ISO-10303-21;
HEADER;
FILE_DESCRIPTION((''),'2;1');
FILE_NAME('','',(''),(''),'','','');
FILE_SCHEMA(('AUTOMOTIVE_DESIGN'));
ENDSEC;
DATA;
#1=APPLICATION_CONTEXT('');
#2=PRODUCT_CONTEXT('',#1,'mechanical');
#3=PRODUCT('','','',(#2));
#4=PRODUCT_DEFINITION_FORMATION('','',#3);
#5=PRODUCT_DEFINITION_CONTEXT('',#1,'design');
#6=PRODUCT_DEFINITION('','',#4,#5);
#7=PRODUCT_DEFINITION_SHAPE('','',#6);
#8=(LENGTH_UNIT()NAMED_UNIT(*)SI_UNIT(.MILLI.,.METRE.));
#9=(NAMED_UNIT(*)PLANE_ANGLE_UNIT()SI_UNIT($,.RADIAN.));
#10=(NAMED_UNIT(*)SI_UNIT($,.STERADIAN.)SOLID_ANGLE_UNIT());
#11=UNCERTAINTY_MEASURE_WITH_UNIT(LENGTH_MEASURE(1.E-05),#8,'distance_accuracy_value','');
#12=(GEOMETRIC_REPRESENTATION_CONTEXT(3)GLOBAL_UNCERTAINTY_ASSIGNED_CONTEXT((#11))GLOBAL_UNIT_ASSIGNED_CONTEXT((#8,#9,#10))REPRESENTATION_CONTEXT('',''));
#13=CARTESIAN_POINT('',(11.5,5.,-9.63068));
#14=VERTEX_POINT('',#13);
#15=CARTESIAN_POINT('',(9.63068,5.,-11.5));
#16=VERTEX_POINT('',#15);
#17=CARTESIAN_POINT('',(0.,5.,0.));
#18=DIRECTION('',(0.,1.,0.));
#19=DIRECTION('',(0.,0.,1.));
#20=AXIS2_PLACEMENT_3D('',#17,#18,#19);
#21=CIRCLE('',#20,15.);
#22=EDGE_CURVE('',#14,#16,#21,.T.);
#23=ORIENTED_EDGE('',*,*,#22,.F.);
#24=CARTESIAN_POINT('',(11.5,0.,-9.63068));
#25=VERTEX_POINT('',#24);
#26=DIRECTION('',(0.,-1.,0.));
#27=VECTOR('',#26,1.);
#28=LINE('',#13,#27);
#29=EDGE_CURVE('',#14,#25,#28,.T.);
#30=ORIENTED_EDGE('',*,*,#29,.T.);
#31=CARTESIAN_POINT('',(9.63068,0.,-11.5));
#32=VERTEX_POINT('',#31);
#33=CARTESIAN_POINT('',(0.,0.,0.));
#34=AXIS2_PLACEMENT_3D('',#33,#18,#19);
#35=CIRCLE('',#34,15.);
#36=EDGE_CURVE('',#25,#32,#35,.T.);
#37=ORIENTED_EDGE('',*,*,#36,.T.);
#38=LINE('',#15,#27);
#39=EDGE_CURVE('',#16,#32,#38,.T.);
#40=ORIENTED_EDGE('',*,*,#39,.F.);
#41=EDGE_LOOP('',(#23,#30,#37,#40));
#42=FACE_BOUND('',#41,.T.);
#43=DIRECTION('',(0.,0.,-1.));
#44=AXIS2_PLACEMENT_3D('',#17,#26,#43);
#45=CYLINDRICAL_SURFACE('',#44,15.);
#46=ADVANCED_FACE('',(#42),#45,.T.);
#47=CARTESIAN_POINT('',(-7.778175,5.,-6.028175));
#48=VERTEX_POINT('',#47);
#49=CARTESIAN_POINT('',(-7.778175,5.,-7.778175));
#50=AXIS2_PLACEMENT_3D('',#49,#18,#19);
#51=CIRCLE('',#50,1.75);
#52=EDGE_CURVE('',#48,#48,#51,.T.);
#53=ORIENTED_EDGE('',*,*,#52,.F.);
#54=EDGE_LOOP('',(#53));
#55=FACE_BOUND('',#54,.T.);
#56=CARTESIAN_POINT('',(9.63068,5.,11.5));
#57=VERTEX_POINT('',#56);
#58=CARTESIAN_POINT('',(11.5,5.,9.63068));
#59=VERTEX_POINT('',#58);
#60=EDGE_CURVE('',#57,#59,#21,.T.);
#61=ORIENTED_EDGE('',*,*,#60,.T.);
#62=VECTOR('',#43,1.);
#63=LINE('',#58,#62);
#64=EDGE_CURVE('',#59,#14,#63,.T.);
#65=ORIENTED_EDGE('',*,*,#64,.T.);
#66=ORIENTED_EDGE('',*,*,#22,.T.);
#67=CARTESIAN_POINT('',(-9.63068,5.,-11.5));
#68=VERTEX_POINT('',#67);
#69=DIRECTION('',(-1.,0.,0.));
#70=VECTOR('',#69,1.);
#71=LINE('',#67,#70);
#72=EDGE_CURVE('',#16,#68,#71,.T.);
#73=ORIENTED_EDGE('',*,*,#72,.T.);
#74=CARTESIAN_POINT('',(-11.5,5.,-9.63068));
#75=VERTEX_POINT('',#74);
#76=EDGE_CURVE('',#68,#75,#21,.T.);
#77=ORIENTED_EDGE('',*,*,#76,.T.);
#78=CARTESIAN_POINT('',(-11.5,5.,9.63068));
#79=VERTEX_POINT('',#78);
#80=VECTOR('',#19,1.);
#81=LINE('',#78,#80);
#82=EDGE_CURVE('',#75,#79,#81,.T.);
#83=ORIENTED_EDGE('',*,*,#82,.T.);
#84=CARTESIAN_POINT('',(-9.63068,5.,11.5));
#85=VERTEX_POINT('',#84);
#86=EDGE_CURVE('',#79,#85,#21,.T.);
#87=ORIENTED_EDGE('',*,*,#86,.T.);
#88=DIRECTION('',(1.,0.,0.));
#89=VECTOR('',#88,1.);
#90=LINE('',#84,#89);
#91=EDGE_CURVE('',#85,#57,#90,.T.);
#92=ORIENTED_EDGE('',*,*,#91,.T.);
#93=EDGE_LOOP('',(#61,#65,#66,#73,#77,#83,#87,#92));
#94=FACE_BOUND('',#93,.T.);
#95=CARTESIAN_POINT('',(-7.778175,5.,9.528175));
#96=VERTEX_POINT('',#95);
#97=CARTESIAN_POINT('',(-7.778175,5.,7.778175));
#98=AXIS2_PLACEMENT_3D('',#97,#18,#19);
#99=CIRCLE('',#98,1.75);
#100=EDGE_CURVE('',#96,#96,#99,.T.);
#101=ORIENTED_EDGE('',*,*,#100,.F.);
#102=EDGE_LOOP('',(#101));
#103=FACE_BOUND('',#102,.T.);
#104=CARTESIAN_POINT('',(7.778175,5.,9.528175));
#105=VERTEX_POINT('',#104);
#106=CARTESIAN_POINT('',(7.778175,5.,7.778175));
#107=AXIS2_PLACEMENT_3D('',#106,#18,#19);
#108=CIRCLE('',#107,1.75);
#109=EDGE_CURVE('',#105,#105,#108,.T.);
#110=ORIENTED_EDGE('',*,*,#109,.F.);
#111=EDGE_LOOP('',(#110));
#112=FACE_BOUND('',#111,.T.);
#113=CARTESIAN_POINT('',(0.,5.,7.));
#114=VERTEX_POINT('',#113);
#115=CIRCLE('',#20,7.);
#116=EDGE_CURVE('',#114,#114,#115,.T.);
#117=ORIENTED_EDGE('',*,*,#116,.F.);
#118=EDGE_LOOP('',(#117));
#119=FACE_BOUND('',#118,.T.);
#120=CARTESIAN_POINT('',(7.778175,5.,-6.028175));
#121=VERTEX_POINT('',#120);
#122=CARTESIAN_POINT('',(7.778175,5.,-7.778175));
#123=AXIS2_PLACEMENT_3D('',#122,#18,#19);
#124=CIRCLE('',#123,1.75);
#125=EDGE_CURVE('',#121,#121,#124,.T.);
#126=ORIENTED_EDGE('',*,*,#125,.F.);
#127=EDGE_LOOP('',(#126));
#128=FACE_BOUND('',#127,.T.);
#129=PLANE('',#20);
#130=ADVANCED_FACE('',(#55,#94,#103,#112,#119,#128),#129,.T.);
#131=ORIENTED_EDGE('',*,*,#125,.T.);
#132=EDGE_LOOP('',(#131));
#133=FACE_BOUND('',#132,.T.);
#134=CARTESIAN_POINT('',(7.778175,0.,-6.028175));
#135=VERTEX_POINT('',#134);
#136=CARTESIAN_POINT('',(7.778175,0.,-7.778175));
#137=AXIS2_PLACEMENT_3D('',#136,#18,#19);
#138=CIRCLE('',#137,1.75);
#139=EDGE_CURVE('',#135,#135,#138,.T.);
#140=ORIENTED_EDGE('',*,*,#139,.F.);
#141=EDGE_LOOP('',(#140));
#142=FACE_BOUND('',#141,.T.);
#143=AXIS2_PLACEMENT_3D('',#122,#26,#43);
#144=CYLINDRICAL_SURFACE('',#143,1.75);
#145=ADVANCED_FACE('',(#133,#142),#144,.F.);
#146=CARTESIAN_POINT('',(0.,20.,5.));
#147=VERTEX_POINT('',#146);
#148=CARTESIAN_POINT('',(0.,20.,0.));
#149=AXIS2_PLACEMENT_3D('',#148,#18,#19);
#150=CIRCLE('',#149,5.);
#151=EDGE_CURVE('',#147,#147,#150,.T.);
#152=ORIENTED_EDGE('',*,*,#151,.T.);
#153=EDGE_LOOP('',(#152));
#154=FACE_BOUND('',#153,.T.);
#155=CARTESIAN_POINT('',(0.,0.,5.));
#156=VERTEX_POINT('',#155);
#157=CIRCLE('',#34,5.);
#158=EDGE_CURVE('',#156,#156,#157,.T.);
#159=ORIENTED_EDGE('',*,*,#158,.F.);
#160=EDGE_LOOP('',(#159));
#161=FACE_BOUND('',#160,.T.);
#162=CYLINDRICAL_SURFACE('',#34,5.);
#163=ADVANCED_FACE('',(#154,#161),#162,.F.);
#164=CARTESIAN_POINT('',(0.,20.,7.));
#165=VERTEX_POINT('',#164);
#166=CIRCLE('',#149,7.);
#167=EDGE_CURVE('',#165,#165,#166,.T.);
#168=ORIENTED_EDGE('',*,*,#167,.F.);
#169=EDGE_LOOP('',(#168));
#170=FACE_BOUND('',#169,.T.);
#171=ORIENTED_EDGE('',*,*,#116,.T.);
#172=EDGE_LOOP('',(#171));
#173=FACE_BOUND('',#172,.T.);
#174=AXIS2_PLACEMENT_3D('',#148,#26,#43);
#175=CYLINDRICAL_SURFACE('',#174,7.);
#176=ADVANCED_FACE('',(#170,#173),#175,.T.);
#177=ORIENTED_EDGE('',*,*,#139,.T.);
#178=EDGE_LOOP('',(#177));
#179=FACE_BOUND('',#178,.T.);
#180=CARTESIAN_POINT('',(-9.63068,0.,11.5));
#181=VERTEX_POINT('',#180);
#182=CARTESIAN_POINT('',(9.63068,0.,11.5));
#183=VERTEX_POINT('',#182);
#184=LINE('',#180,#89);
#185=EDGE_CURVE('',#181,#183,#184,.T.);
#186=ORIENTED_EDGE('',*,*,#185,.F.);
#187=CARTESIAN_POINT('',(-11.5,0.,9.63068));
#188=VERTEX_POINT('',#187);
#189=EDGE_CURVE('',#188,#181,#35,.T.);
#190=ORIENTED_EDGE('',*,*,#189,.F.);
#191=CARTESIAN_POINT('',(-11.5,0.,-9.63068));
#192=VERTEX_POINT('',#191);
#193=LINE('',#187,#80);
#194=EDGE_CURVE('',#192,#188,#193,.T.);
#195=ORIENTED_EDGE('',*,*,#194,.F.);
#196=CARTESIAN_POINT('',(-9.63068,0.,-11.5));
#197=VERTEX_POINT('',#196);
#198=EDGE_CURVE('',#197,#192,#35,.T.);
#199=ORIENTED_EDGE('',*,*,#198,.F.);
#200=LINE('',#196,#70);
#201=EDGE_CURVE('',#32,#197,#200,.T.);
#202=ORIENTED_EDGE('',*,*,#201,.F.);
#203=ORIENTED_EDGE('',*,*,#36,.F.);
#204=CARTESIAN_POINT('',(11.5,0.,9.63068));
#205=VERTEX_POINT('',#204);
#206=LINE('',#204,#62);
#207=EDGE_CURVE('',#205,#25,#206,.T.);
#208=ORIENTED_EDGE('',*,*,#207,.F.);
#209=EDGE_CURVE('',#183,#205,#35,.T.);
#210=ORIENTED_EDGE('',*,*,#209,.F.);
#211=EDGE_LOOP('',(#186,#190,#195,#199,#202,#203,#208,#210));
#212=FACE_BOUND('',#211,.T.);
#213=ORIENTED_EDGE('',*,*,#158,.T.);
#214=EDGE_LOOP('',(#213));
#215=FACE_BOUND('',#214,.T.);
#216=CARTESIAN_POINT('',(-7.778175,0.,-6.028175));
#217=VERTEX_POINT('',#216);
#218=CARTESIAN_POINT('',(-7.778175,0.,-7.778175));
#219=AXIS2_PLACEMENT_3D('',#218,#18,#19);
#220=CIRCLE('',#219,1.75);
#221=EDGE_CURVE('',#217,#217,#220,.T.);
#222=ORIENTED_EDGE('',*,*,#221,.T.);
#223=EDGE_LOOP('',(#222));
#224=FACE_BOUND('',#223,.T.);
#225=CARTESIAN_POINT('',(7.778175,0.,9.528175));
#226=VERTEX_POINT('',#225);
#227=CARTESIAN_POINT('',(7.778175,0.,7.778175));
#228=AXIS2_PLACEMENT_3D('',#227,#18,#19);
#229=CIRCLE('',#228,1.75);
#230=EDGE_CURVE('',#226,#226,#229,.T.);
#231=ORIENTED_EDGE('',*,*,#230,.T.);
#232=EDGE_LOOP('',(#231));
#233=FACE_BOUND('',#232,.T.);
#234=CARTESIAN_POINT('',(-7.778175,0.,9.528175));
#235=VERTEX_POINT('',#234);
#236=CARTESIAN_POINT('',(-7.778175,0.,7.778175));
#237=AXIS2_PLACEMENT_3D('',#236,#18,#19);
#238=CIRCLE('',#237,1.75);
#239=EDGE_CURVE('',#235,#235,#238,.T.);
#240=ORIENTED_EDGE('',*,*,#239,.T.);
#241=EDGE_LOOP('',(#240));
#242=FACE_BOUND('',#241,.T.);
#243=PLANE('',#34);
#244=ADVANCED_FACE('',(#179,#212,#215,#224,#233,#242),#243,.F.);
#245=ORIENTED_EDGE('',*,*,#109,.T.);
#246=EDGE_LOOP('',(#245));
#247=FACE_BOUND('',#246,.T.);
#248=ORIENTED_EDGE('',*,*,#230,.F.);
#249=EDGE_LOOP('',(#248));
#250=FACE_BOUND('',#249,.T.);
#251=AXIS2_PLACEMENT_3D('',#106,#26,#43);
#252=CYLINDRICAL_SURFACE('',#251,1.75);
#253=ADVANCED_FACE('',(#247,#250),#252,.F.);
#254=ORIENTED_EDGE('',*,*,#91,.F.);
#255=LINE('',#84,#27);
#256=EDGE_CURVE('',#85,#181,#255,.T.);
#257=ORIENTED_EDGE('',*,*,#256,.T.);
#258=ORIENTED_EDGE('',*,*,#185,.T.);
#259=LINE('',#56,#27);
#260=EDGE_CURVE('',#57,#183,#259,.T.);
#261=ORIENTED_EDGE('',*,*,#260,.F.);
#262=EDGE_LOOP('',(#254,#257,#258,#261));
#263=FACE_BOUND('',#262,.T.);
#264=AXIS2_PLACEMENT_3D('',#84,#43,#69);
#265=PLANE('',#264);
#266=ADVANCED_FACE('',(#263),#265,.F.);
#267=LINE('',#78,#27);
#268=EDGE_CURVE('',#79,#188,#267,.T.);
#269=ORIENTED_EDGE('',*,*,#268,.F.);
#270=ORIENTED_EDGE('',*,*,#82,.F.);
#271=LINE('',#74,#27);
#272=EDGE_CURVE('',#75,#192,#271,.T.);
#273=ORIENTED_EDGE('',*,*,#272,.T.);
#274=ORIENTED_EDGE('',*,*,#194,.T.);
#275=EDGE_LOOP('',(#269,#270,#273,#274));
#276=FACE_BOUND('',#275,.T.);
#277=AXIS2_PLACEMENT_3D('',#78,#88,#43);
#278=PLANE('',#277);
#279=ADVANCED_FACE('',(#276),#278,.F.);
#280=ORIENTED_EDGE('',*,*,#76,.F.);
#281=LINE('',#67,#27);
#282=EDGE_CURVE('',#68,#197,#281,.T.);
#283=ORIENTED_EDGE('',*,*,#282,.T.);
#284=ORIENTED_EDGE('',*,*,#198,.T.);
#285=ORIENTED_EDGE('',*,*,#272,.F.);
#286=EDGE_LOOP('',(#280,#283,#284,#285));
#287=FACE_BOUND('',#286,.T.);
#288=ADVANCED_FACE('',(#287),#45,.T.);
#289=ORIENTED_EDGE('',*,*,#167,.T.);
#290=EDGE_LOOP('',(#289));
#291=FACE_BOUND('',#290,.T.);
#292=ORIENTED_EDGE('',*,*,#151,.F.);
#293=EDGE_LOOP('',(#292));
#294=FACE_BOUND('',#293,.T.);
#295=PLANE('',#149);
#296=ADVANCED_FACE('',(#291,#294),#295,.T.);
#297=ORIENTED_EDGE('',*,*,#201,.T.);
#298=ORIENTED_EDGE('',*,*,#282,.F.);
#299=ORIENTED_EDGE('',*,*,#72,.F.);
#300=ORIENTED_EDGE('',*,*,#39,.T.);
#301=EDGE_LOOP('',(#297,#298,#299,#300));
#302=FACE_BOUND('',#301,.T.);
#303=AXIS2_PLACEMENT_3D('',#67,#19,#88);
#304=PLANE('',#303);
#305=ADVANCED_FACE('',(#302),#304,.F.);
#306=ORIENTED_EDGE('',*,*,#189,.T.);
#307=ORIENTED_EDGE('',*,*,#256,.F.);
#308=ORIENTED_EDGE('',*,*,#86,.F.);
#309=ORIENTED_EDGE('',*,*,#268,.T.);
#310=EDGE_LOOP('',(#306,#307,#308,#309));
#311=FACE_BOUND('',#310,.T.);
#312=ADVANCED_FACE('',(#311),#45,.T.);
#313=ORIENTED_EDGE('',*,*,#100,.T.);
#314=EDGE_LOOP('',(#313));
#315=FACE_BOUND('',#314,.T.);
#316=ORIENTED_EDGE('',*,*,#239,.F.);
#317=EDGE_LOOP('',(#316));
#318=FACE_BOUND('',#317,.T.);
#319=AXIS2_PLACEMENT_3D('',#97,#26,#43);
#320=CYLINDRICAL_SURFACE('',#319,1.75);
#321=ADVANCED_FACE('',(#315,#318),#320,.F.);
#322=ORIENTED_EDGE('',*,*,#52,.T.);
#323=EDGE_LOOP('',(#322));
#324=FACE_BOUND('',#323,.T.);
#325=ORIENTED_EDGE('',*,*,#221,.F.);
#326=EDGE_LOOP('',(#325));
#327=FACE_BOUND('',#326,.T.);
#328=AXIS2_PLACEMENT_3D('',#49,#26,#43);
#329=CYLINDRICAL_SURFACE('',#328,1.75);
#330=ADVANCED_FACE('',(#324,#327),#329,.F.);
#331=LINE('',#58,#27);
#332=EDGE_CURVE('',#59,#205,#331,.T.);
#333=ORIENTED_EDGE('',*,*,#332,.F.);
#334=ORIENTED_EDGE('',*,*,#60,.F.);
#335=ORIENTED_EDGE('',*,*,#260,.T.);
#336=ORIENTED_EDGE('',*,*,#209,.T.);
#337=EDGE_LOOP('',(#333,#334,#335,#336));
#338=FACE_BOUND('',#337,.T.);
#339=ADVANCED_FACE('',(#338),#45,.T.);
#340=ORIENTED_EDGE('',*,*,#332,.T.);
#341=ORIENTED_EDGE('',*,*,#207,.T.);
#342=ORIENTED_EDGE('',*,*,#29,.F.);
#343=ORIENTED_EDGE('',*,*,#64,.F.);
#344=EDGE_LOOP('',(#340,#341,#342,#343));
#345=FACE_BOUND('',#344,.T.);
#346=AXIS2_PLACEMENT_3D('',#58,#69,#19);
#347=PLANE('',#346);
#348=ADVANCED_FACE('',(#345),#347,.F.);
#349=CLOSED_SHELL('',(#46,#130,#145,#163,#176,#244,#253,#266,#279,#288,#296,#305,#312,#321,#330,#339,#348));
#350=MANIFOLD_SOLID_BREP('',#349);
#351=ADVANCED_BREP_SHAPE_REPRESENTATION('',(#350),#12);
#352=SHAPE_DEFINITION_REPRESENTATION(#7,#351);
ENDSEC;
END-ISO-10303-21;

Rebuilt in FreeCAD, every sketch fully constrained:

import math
import FreeCAD as App
import Part
import Sketcher
from FreeCAD import Vector
Q = App.Units.Quantity

doc = App.newDocument("Part")
body = doc.addObject("PartDesign::Body", "Body")

sketch1 = body.newObject("Sketcher::SketchObject", "Sketch")
sketch1.AttachmentSupport = (doc.getObject("XZ_Plane"), [""])
sketch1.MapMode = "FlatFace"
sketch1.addGeometry([
    Part.LineSegment(Vector(-9.63068, 11.5, 0), Vector(9.63068, 11.5, 0)),
    Part.ArcOfCircle(Part.Circle(Vector(0, 0, 0), Vector(0, 0, 1), 15), math.radians(39.944505), math.radians(50.055495)),
    Part.LineSegment(Vector(11.5, 9.63068, 0), Vector(11.5, -9.63068, 0)),
    Part.ArcOfCircle(Part.Circle(Vector(0, 0, 0), Vector(0, 0, 1), 15), math.radians(-50.055495), math.radians(-39.944505)),
    Part.LineSegment(Vector(9.63068, -11.5, 0), Vector(-9.63068, -11.5, 0)),
    Part.ArcOfCircle(Part.Circle(Vector(0, 0, 0), Vector(0, 0, 1), 15), math.radians(-140.055495), math.radians(-129.944505)),
    Part.LineSegment(Vector(-11.5, -9.63068, 0), Vector(-11.5, 9.63068, 0)),
    Part.ArcOfCircle(Part.Circle(Vector(0, 0, 0), Vector(0, 0, 1), 15), math.radians(129.944505), math.radians(140.055495)),
    Part.Circle(Vector(-7.778175, 7.778175, 0), Vector(0, 0, 1), 1.75),
    Part.Circle(Vector(7.778175, 7.778175, 0), Vector(0, 0, 1), 1.75),
    Part.Circle(Vector(-7.778175, -7.778175, 0), Vector(0, 0, 1), 1.75),
    Part.Circle(Vector(7.778175, -7.778175, 0), Vector(0, 0, 1), 1.75),
], False)
sketch1.addConstraint([
    Sketcher.Constraint("Coincident", 0, 2, 1, 2),
    Sketcher.Constraint("Coincident", 1, 1, 2, 1),
    Sketcher.Constraint("Coincident", 2, 2, 3, 2),
    Sketcher.Constraint("Coincident", 3, 1, 4, 1),
    Sketcher.Constraint("Coincident", 4, 2, 5, 2),
    Sketcher.Constraint("Coincident", 5, 1, 6, 1),
    Sketcher.Constraint("Coincident", 6, 2, 7, 2),
    Sketcher.Constraint("Coincident", 7, 1, 0, 1),
    Sketcher.Constraint("Horizontal", 0),
    Sketcher.Constraint("Vertical", 2),
    Sketcher.Constraint("Horizontal", 4),
    Sketcher.Constraint("Vertical", 6),
    Sketcher.Constraint("Coincident", 1, 3, -1, 1),
    Sketcher.Constraint("Coincident", 3, 3, -1, 1),
    Sketcher.Constraint("Coincident", 5, 3, -1, 1),
    Sketcher.Constraint("Coincident", 7, 3, -1, 1),
    Sketcher.Constraint("Equal", 1, 3),
    Sketcher.Constraint("Equal", 3, 5),
    Sketcher.Constraint("Equal", 5, 7),
    Sketcher.Constraint("Equal", 8, 9),
    Sketcher.Constraint("Equal", 9, 10),
    Sketcher.Constraint("Equal", 10, 11),
    Sketcher.Constraint("Symmetric", 9, 3, 10, 3, -1, 1),
    Sketcher.Constraint("Symmetric", 8, 3, 11, 3, -1, 1),
    Sketcher.Constraint("Symmetric", 8, 3, 9, 3, -2),
    Sketcher.Constraint("Horizontal", 2, 2, 5, 1),
    Sketcher.Constraint("Vertical", 0, 2, 3, 1),
    Sketcher.Constraint("Equal", 4, 2),
    Sketcher.Constraint("Radius", 1, Q("15 mm")),
    Sketcher.Constraint("Diameter", 8, Q("3.5 mm")),
    Sketcher.Constraint("DistanceY", -1, 1, 0, 2, Q("11.5 mm")),
    Sketcher.Constraint("DistanceX", 8, 3, 9, 3, Q("15.556349 mm")),
    Sketcher.Constraint("DistanceY", 10, 3, 8, 3, Q("15.556349 mm")),
])
pad1 = body.newObject("PartDesign::Pad", "Pad")
pad1.Profile = sketch1
pad1.Length = 5
pad1.Reversed = True

sketch2 = body.newObject("Sketcher::SketchObject", "Sketch001")
sketch2.AttachmentSupport = (doc.getObject("XZ_Plane"), [""])
sketch2.MapMode = "FlatFace"
sketch2.AttachmentOffset = App.Placement(Vector(0, 0, -5), App.Rotation())
sketch2.addGeometry(Part.Circle(Vector(0, 0, 0), Vector(0, 0, 1), 7), False)
sketch2.addConstraint([
    Sketcher.Constraint("Coincident", 0, 3, -1, 1),
    Sketcher.Constraint("Diameter", 0, Q("14 mm")),
])
pad2 = body.newObject("PartDesign::Pad", "Pad001")
pad2.Profile = sketch2
pad2.Length = 15
pad2.Reversed = True

sketch3 = body.newObject("Sketcher::SketchObject", "Sketch002")
sketch3.AttachmentSupport = (doc.getObject("XZ_Plane"), [""])
sketch3.MapMode = "FlatFace"
sketch3.AttachmentOffset = App.Placement(Vector(0, 0, -20), App.Rotation())
sketch3.addGeometry(Part.Circle(Vector(0, 0, 0), Vector(0, 0, 1), 5), False)
sketch3.addConstraint([
    Sketcher.Constraint("Coincident", 0, 3, -1, 1),
    Sketcher.Constraint("Diameter", 0, Q("10 mm")),
])
pocket1 = body.newObject("PartDesign::Pocket", "Pocket")
pocket1.Profile = sketch3
pocket1.Type = "ThroughAll"
pocket1.Reversed = True

doc.recompute()
